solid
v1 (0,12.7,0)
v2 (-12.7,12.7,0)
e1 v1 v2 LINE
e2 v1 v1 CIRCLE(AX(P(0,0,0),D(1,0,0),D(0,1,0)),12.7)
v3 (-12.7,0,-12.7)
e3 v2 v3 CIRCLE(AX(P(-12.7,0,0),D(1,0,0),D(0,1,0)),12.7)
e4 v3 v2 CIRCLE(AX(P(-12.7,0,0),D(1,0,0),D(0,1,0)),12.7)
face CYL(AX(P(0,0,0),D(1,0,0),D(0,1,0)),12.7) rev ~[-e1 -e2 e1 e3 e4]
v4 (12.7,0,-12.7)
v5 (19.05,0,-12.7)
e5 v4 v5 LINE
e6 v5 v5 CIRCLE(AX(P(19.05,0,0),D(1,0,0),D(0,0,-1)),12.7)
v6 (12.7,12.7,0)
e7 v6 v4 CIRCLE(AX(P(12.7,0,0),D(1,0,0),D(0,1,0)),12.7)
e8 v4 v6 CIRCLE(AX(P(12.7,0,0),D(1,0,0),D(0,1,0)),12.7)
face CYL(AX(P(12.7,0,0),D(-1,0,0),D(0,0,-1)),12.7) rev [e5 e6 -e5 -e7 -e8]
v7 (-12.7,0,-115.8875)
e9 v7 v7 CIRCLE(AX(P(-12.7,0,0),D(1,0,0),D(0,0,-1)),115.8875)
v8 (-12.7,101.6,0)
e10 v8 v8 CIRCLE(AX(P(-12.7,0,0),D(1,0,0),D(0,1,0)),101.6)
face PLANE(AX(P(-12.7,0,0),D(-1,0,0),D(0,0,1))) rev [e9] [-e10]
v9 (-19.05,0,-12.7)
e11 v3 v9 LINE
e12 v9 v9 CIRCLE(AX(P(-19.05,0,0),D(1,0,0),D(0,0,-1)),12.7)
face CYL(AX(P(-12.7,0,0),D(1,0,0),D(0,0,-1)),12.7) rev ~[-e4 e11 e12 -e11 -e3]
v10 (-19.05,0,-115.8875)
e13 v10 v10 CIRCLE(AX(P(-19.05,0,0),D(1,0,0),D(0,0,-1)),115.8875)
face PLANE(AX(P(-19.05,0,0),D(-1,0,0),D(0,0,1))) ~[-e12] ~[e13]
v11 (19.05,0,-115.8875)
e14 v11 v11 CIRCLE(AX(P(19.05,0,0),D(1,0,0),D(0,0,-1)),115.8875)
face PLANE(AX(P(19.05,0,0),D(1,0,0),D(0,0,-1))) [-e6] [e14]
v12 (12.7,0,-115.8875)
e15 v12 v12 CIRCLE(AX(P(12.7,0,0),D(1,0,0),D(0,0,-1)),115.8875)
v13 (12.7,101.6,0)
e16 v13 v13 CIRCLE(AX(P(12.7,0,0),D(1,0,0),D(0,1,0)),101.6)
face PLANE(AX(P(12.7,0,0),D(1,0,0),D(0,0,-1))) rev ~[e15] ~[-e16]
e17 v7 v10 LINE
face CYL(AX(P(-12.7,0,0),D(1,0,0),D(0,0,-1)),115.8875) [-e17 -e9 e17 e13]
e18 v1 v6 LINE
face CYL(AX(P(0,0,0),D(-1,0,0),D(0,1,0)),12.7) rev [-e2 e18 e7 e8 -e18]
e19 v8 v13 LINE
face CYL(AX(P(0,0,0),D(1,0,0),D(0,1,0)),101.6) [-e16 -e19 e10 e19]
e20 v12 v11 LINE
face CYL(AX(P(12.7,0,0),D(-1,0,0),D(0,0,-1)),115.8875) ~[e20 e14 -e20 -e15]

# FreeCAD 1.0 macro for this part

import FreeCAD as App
import Part
import Sketcher

V = App.Vector
Q = App.Units.Quantity

doc = App.newDocument("Part")
params = doc.addObject("Spreadsheet::Sheet", "Params")
for row, (alias, value) in enumerate([
    ("sketch1_diameter", "8 in"),
    ("sketch1_diameter2", "1 in"),
    ("pad1_length", "1 in"),
    ("sketch2_diameter", "1 in"),
    ("sketch2_diameter2", "9.125 in"),
    ("pad2_length", "0.25 in"),
], start=1):
    params.set(f"A{row}", alias)
    params.set(f"B{row}", "=" + value)
    params.setAlias(f"B{row}", alias)

body = doc.addObject("PartDesign::Body", "Body")

# Sketch on YZ plane
sketch1 = body.newObject("Sketcher::SketchObject", "Sketch")
sketch1.AttachmentSupport = (doc.getObject("YZ_Plane"), [""])
sketch1.MapMode = "FlatFace"
sketch1.addGeometry([
    Part.Circle(V(0, 0, 0), V(0, 0, 1), 102),
    Part.Circle(V(0, 0, 0), V(0, 0, 1), 13),
], False)
sketch1.addConstraint([
    Sketcher.Constraint("Coincident", 0, 3, -1, 1),
    Sketcher.Constraint("Coincident", 1, 3, -1, 1),
    Sketcher.Constraint("Diameter", 0, Q("8 in")),
    Sketcher.Constraint("Diameter", 1, Q("1 in")),
])
sketch1.setExpression("Constraints[2]", "Params.sketch1_diameter")
sketch1.setExpression("Constraints[3]", "Params.sketch1_diameter2")
pad1 = body.newObject("PartDesign::Pad", "Pad")
pad1.Profile = sketch1
pad1.setExpression("Length", "Params.pad1_length")
pad1.Midplane = True

# Sketch on YZ plane
sketch2 = body.newObject("Sketcher::SketchObject", "Sketch001")
sketch2.AttachmentSupport = (doc.getObject("YZ_Plane"), [""])
sketch2.MapMode = "FlatFace"
sketch2.AttachmentOffset = App.Placement(V(0, 0, 0.5 * 25.4), App.Rotation())
sketch2.addGeometry([
    Part.Circle(V(0, 0, 0), V(0, 0, 1), 116),
    Part.Circle(V(0, 0, 0), V(0, 0, 1), 13),
], False)
sketch2.addConstraint([
    Sketcher.Constraint("Coincident", 0, 3, -1, 1),
    Sketcher.Constraint("Coincident", 1, 3, -1, 1),
    Sketcher.Constraint("Diameter", 1, Q("1 in")),
    Sketcher.Constraint("Diameter", 0, Q("9.125 in")),
])
sketch2.setExpression("Constraints[2]", "Params.sketch2_diameter")
sketch2.setExpression("Constraints[3]", "Params.sketch2_diameter2")
pad2 = body.newObject("PartDesign::Pad", "Pad001")
pad2.Profile = sketch2
pad2.setExpression("Length", "Params.pad2_length")
doc.recompute()

mirrored = body.newObject("PartDesign::Mirrored", "Mirrored")
mirrored.Originals = [pad2]
mirrored.MirrorPlane = (doc.getObject("YZ_Plane"), [""])
body.Tip = mirrored

doc.recompute()
